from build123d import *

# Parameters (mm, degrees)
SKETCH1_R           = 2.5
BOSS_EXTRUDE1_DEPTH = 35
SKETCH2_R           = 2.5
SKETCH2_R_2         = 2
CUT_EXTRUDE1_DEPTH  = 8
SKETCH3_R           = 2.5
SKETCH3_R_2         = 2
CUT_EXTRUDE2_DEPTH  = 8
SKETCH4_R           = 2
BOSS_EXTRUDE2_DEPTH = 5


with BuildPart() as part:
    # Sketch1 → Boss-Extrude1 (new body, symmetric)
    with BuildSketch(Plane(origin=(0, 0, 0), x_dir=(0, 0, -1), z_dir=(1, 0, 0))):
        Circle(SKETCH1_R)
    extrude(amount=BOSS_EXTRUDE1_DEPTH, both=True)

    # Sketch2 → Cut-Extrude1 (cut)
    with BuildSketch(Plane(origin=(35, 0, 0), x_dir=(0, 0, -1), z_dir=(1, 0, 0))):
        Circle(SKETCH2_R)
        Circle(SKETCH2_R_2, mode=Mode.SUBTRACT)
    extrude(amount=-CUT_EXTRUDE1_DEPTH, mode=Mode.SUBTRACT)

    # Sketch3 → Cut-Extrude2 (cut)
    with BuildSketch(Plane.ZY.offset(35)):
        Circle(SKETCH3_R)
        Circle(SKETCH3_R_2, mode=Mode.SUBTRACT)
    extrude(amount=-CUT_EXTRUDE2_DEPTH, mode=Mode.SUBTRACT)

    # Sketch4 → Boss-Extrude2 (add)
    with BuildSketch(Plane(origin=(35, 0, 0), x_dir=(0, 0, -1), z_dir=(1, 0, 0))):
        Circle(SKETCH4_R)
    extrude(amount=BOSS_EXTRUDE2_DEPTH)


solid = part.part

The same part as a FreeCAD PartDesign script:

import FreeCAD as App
import Part
import Sketcher
from FreeCAD import Vector
Q = App.Units.Quantity

doc = App.newDocument("Part")
body = doc.addObject("PartDesign::Body", "Body")

# Sketch on YZ plane
sketch1 = body.newObject("Sketcher::SketchObject", "Sketch")
sketch1.AttachmentSupport = (doc.getObject("YZ_Plane"), [""])
sketch1.MapMode = "FlatFace"
sketch1.addGeometry(Part.Circle(Vector(0, 0, 0), Vector(0, 0, 1), 2.5), False)
sketch1.addConstraint(Sketcher.Constraint("Coincident", 0, 3, -1, 1))
sketch1.addConstraint(Sketcher.Constraint("Diameter", 0, Q("5 mm")))
pad1 = body.newObject("PartDesign::Pad", "Pad")
pad1.Profile = sketch1
pad1.Length = 70
pad1.Midplane = True

# Sketch on YZ plane
sketch2 = body.newObject("Sketcher::SketchObject", "Sketch001")
sketch2.AttachmentSupport = (doc.getObject("YZ_Plane"), [""])
sketch2.MapMode = "FlatFace"
sketch2.AttachmentOffset = App.Placement(Vector(0, 0, 35), App.Rotation())
sketch2.addGeometry(Part.Circle(Vector(0, 0, 0), Vector(0, 0, 1), 2.5), False)
sketch2.addGeometry(Part.Circle(Vector(0, 0, 0), Vector(0, 0, 1), 2), False)
sketch2.addConstraint(Sketcher.Constraint("Coincident", 0, 3, -1, 1))
sketch2.addConstraint(Sketcher.Constraint("Coincident", 1, 3, -1, 1))
sketch2.addConstraint(Sketcher.Constraint("Diameter", 0, Q("5 mm")))
sketch2.addConstraint(Sketcher.Constraint("Diameter", 1, Q("4 mm")))
pocket1 = body.newObject("PartDesign::Pocket", "Pocket")
pocket1.Profile = sketch2
pocket1.Length = 8

# Sketch on YZ plane
sketch3 = body.newObject("Sketcher::SketchObject", "Sketch002")
sketch3.AttachmentSupport = (doc.getObject("YZ_Plane"), [""])
sketch3.MapMode = "FlatFace"
sketch3.AttachmentOffset = App.Placement(Vector(0, 0, -35), App.Rotation())
sketch3.addGeometry(Part.Circle(Vector(0, 0, 0), Vector(0, 0, 1), 2.5), False)
sketch3.addGeometry(Part.Circle(Vector(0, 0, 0), Vector(0, 0, 1), 2), False)
sketch3.addConstraint(Sketcher.Constraint("Coincident", 0, 3, -1, 1))
sketch3.addConstraint(Sketcher.Constraint("Coincident", 1, 3, -1, 1))
sketch3.addConstraint(Sketcher.Constraint("Diameter", 0, Q("5 mm")))
sketch3.addConstraint(Sketcher.Constraint("Diameter", 1, Q("4 mm")))
pocket2 = body.newObject("PartDesign::Pocket", "Pocket001")
pocket2.Profile = sketch3
pocket2.Length = 8
pocket2.Reversed = True

# Sketch on YZ plane
sketch4 = body.newObject("Sketcher::SketchObject", "Sketch003")
sketch4.AttachmentSupport = (doc.getObject("YZ_Plane"), [""])
sketch4.MapMode = "FlatFace"
sketch4.AttachmentOffset = App.Placement(Vector(0, 0, 35), App.Rotation())
sketch4.addGeometry(Part.Circle(Vector(0, 0, 0), Vector(0, 0, 1), 2), False)
sketch4.addConstraint(Sketcher.Constraint("Coincident", 0, 3, -1, 1))
sketch4.addConstraint(Sketcher.Constraint("Diameter", 0, Q("4 mm")))
pad2 = body.newObject("PartDesign::Pad", "Pad001")
pad2.Profile = sketch4
pad2.Length = 5

doc.recompute()
